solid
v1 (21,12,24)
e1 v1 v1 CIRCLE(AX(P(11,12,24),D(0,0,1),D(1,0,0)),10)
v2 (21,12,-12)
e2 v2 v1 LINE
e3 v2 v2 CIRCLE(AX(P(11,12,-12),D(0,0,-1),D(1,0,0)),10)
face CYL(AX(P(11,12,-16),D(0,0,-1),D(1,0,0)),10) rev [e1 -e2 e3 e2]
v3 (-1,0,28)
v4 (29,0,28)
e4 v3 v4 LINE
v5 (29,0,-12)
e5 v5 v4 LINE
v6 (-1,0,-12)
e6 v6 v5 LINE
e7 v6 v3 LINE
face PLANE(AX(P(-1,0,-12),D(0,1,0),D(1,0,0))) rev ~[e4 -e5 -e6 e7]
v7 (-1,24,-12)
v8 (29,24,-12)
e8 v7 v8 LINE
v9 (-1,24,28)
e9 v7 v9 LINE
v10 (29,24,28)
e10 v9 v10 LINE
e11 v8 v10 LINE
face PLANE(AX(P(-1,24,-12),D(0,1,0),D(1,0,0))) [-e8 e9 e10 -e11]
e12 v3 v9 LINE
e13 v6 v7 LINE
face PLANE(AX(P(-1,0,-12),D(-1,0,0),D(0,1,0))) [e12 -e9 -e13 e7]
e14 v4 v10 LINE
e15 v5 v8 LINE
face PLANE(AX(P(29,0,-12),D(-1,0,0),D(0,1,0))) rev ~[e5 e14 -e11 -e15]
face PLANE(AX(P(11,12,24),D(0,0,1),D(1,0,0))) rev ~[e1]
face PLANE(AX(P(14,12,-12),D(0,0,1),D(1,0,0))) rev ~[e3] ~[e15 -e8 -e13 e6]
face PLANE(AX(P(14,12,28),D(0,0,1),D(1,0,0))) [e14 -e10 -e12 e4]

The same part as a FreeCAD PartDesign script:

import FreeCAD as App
import Part
import Sketcher


def add_polygon(sketch, points):
    """Adds a closed chain of lines whose ends are joined by coincident constraints."""
    first, n = sketch.GeometryCount, len(points)
    for a, b in zip(points, points[1:] + points[:1]):
        sketch.addGeometry(Part.LineSegment(App.Vector(*a, 0), App.Vector(*b, 0)), False)
    for i in range(n):
        sketch.addConstraint(Sketcher.Constraint("Coincident", first + i, 2, first + (i + 1) % n, 1))

doc = App.newDocument("Part")
body = doc.addObject("PartDesign::Body", "Body")

sketch1 = body.newObject("Sketcher::SketchObject", "Sketch")
sketch1.AttachmentSupport = (doc.getObject("XY_Plane"), [""])
sketch1.MapMode = "FlatFace"
sketch1.AttachmentOffset = App.Placement(App.Vector(0, 0, -16), App.Rotation())
sketch1.addGeometry(Part.Circle(App.Vector(11, 12, 0), App.Vector(0, 0, 1), 10), False)
sketch1.addConstraint(Sketcher.Constraint("Diameter", 0, 20.0))
sketch1.addConstraint(Sketcher.Constraint("DistanceX", -1, 1, 0, 3, 11.0))
sketch1.addConstraint(Sketcher.Constraint("DistanceY", -1, 1, 0, 3, 12.0))
pad1 = body.newObject("PartDesign::Pad", "Pad")
pad1.Profile = sketch1
pad1.Length = 40
body2 = doc.addObject("PartDesign::Body", "Body001")

sketch2 = body2.newObject("Sketcher::SketchObject", "Sketch001")
sketch2.AttachmentSupport = (doc.getObject("XY_Plane001"), [""])
sketch2.MapMode = "FlatFace"
sketch2.AttachmentOffset = App.Placement(App.Vector(0, 0, -12), App.Rotation())
add_polygon(sketch2, [(-1, 24), (-1, 0), (29, 0), (29, 24)])
sketch2.addConstraint(Sketcher.Constraint("Vertical", 0))
sketch2.addConstraint(Sketcher.Constraint("Horizontal", 1))
sketch2.addConstraint(Sketcher.Constraint("Vertical", 2))
sketch2.addConstraint(Sketcher.Constraint("Horizontal", 3))
sketch2.addConstraint(Sketcher.Constraint("PointOnObject", 0, 2, -1))
sketch2.addConstraint(Sketcher.Constraint("DistanceX", 1, 1, 1, 2, 30.0))
sketch2.addConstraint(Sketcher.Constraint("DistanceY", 0, 2, 0, 1, 24.0))
sketch2.addConstraint(Sketcher.Constraint("DistanceX", 0, 2, -1, 1, 1.0))
pad2 = body2.newObject("PartDesign::Pad", "Pad001")
pad2.Profile = sketch2
pad2.Length = 40
doc.recompute()

boolean = body2.newObject("PartDesign::Boolean", "Boolean")
boolean.Type = "Cut"
boolean.addObjects([body])

doc.recompute()
